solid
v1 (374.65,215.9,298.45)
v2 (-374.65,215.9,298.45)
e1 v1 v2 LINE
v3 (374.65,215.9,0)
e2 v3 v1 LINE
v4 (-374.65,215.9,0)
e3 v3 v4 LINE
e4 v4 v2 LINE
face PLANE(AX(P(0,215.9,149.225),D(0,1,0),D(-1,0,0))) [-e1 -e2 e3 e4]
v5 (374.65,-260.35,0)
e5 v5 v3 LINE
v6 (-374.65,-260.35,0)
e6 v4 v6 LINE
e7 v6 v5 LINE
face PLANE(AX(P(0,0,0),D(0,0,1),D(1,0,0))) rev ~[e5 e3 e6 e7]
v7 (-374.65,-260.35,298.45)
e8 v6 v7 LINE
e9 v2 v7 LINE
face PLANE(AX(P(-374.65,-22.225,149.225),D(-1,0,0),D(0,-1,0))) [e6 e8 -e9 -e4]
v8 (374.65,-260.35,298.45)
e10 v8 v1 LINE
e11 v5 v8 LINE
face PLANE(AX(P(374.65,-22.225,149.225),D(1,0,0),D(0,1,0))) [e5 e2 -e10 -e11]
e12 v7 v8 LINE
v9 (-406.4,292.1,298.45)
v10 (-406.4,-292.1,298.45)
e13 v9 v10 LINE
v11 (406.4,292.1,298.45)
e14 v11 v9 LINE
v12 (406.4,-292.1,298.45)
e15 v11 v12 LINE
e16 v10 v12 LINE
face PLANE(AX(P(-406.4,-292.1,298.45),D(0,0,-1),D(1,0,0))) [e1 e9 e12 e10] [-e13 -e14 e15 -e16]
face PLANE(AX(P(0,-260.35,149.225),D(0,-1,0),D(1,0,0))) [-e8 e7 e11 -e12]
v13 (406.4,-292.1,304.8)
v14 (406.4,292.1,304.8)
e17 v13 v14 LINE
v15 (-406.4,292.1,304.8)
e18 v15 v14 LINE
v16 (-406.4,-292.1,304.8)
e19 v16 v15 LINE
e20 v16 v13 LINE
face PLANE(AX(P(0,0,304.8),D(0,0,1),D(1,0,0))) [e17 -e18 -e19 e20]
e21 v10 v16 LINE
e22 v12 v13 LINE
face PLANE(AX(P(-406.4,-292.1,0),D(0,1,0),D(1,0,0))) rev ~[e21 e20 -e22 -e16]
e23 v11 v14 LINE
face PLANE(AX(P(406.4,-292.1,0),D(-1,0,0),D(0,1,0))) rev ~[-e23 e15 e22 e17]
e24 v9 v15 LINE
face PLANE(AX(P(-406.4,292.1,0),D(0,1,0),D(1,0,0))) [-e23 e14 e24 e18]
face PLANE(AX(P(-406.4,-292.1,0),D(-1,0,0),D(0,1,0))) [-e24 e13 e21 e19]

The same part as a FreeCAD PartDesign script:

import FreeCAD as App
import Part
import Sketcher

V = App.Vector
Q = App.Units.Quantity


def add_polygon(sketch, points):
    """Adds a closed chain of lines whose ends are joined by coincident constraints."""
    first, n = sketch.GeometryCount, len(points)
    for a, b in zip(points, points[1:] + points[:1]):
        sketch.addGeometry(Part.LineSegment(App.Vector(*a, 0), App.Vector(*b, 0)), False)
    for i in range(n):
        sketch.addConstraint(Sketcher.Constraint("Coincident", first + i, 2, first + (i + 1) % n, 1))

doc = App.newDocument("Part")
body = doc.addObject("PartDesign::Body", "Body")

sketch1 = body.newObject("Sketcher::SketchObject", "Sketch")
sketch1.AttachmentSupport = (doc.getObject("XY_Plane"), [""])
sketch1.MapMode = "FlatFace"
add_polygon(sketch1, [(-406, 292), (-406, -292), (406, -292), (406, 292)])
sketch1.addConstraint([
    Sketcher.Constraint("Vertical", 0),
    Sketcher.Constraint("Horizontal", 1),
    Sketcher.Constraint("Vertical", 2),
    Sketcher.Constraint("Horizontal", 3),
    Sketcher.Constraint("Symmetric", 0, 2, 2, 2, -1, 1),
    Sketcher.Constraint("DistanceX", 1, 1, 1, 2, Q("32 in")),
    Sketcher.Constraint("DistanceY", 0, 2, 0, 1, Q("23 in")),
])
pad1 = body.newObject("PartDesign::Pad", "Pad")
pad1.Profile = sketch1
pad1.Length = Q("12 in")

sketch2 = body.newObject("Sketcher::SketchObject", "Sketch001")
sketch2.AttachmentSupport = (doc.getObject("XZ_Plane"), [""])
sketch2.MapMode = "FlatFace"
sketch2.AttachmentOffset = App.Placement(V(0, 0, 11.5 * 25.4), App.Rotation())
add_polygon(sketch2, [(-406, 298), (-406, 0), (406, 0), (406, 298)])
sketch2.addConstraint([
    Sketcher.Constraint("Vertical", 0),
    Sketcher.Constraint("Horizontal", 1),
    Sketcher.Constraint("Vertical", 2),
    Sketcher.Constraint("Horizontal", 3),
    Sketcher.Constraint("Symmetric", 0, 2, 1, 2, -1, 1),
    Sketcher.Constraint("DistanceX", 1, 1, 1, 2, Q("32 in")),
    Sketcher.Constraint("DistanceY", 0, 2, 0, 1, Q("11.75 in")),
])
pocket1 = body.newObject("PartDesign::Pocket", "Pocket")
pocket1.Profile = sketch2
pocket1.Length = Q("1.25 in")

sketch3 = body.newObject("Sketcher::SketchObject", "Sketch002")
sketch3.AttachmentSupport = (doc.getObject("XZ_Plane"), [""])
sketch3.MapMode = "FlatFace"
sketch3.AttachmentOffset = App.Placement(V(0, 0, -11.5 * 25.4), App.Rotation())
add_polygon(sketch3, [(406, 298), (406, 0), (-406, 0), (-406, 298)])
sketch3.addConstraint([
    Sketcher.Constraint("Vertical", 0),
    Sketcher.Constraint("Horizontal", 1),
    Sketcher.Constraint("Vertical", 2),
    Sketcher.Constraint("Horizontal", 3),
    Sketcher.Constraint("Symmetric", 0, 2, 1, 2, -1, 1),
    Sketcher.Constraint("DistanceX", 1, 2, 1, 1, Q("32 in")),
    Sketcher.Constraint("DistanceY", 0, 2, 0, 1, Q("11.75 in")),
])
pocket2 = body.newObject("PartDesign::Pocket", "Pocket001")
pocket2.Profile = sketch3
pocket2.Length = Q("3 in")
pocket2.Reversed = True

sketch4 = body.newObject("Sketcher::SketchObject", "Sketch003")
sketch4.AttachmentSupport = (doc.getObject("YZ_Plane"), [""])
sketch4.MapMode = "FlatFace"
sketch4.AttachmentOffset = App.Placement(V(0, 0, 16 * 25.4), App.Rotation())
add_polygon(sketch4, [(-260, 298), (-260, 0), (216, 0), (216, 298)])
sketch4.addConstraint([
    Sketcher.Constraint("Vertical", 0),
    Sketcher.Constraint("Horizontal", 1),
    Sketcher.Constraint("Vertical", 2),
    Sketcher.Constraint("Horizontal", 3),
    Sketcher.Constraint("PointOnObject", 0, 2, -1),
    Sketcher.Constraint("DistanceX", 1, 1, 1, 2, Q("18.75 in")),
    Sketcher.Constraint("DistanceY", 0, 2, 0, 1, Q("11.75 in")),
    Sketcher.Constraint("DistanceX", -1, 1, 1, 2, Q("8.5 in")),
])
pocket3 = body.newObject("PartDesign::Pocket", "Pocket002")
pocket3.Profile = sketch4
pocket3.Length = Q("1.25 in")

sketch5 = body.newObject("Sketcher::SketchObject", "Sketch004")
sketch5.AttachmentSupport = (doc.getObject("YZ_Plane"), [""])
sketch5.MapMode = "FlatFace"
sketch5.AttachmentOffset = App.Placement(V(0, 0, -16 * 25.4), App.Rotation())
add_polygon(sketch5, [(216, 298), (216, 0), (-260, 0), (-260, 298)])
sketch5.addConstraint([
    Sketcher.Constraint("Vertical", 0),
    Sketcher.Constraint("Horizontal", 1),
    Sketcher.Constraint("Vertical", 2),
    Sketcher.Constraint("Horizontal", 3),
    Sketcher.Constraint("PointOnObject", 0, 2, -1),
    Sketcher.Constraint("DistanceX", 1, 2, 1, 1, Q("18.75 in")),
    Sketcher.Constraint("DistanceY", 0, 2, 0, 1, Q("11.75 in")),
    Sketcher.Constraint("DistanceX", -1, 1, 0, 2, Q("8.5 in")),
])
pocket4 = body.newObject("PartDesign::Pocket", "Pocket003")
pocket4.Profile = sketch5
pocket4.Length = Q("1.25 in")
pocket4.Reversed = True

doc.recompute()
